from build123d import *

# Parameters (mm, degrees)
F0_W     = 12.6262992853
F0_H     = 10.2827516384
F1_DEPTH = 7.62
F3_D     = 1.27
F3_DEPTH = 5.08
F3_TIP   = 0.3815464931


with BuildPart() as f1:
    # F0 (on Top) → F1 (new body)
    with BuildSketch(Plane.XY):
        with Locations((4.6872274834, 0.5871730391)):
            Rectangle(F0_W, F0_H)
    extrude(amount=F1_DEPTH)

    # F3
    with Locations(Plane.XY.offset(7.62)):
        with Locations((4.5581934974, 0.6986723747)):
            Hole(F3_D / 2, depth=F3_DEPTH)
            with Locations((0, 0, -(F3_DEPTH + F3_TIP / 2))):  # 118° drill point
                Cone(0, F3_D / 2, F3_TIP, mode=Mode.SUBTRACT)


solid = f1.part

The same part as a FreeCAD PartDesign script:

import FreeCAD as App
import Part
import Sketcher

V = App.Vector
Q = App.Units.Quantity


def add_polygon(sketch, points):
    """Adds a closed chain of lines whose ends are joined by coincident constraints."""
    first, n = sketch.GeometryCount, len(points)
    for a, b in zip(points, points[1:] + points[:1]):
        sketch.addGeometry(Part.LineSegment(App.Vector(*a, 0), App.Vector(*b, 0)), False)
    for i in range(n):
        sketch.addConstraint(Sketcher.Constraint("Coincident", first + i, 2, first + (i + 1) % n, 1))

doc = App.newDocument("Part")
params = doc.addObject("Spreadsheet::Sheet", "Params")
for row, (alias, value) in enumerate([
    ("pad1_length", "0.3 in"),
    ("sketch2_diameter", "0.05 in"),
    ("hole_diameter", "0.05 in"),
    ("hole_depth", "0.2 in"),
], start=1):
    params.set(f"A{row}", alias)
    params.set(f"B{row}", "=" + value)
    params.setAlias(f"B{row}", alias)

body = doc.addObject("PartDesign::Body", "Body")

# Sketch on XY plane
sketch1 = doc.addObject("Sketcher::SketchObject", "Sketch")
body.addObject(sketch1)
sketch1.AttachmentSupport = (doc.XY_Plane, [""])
sketch1.MapMode = "FlatFace"
add_polygon(sketch1, [(-1.625922, 5.728549), (-1.625922, -4.554203), (11.000377, -4.554203), (11.000377, 5.728549)])  # lines 0-3
sketch1.addConstraint([
    Sketcher.Constraint("Vertical", 0),
    Sketcher.Constraint("Horizontal", 1),
    Sketcher.Constraint("Vertical", 2),
    Sketcher.Constraint("Horizontal", 3),
    Sketcher.Constraint("DistanceX", 1, 1, 1, 2, 12.626299),
    Sketcher.Constraint("DistanceY", 0, 2, 0, 1, 10.282752),
    Sketcher.Constraint("DistanceY", -1, 1, 2, 2, 5.728549),
    Sketcher.Constraint("DistanceX", 0, 2, -1, 1, 1.625922),
])
pad1 = doc.addObject("PartDesign::Pad", "Pad")
body.addObject(pad1)
pad1.Profile = sketch1
pad1.setExpression("Length", "Params.pad1_length")

# Sketch on XY plane
sketch2 = doc.addObject("Sketcher::SketchObject", "Sketch001")
body.addObject(sketch2)
sketch2.AttachmentSupport = (doc.XY_Plane, [""])
sketch2.MapMode = "FlatFace"
sketch2.AttachmentOffset = App.Placement(V(0, 0, 0.3 * 25.4), App.Rotation())
sketch2.addGeometry(Part.Circle(V(4.558193, 0.698672, 0), V(0, 0, 1), 0.635), False)
sketch2.addConstraint([
    Sketcher.Constraint("Diameter", 0, Q("0.05 in")),
    Sketcher.Constraint("DistanceX", -1, 1, 0, 3, 4.558193),
    Sketcher.Constraint("DistanceY", -1, 1, 0, 3, 0.698672),
])
sketch2.setExpression("Constraints[0]", "Params.sketch2_diameter")
doc.recompute()
hole = doc.addObject("PartDesign::Hole", "Hole")
body.addObject(hole)
hole.Profile = sketch2
hole.ThreadType = "None"
hole.setExpression("Diameter", "Params.hole_diameter")
hole.DepthType = "Dimension"
hole.setExpression("Depth", "Params.hole_depth")
hole.DrillPoint = "Angled"
hole.DrillPointAngle = 118

doc.recompute()
